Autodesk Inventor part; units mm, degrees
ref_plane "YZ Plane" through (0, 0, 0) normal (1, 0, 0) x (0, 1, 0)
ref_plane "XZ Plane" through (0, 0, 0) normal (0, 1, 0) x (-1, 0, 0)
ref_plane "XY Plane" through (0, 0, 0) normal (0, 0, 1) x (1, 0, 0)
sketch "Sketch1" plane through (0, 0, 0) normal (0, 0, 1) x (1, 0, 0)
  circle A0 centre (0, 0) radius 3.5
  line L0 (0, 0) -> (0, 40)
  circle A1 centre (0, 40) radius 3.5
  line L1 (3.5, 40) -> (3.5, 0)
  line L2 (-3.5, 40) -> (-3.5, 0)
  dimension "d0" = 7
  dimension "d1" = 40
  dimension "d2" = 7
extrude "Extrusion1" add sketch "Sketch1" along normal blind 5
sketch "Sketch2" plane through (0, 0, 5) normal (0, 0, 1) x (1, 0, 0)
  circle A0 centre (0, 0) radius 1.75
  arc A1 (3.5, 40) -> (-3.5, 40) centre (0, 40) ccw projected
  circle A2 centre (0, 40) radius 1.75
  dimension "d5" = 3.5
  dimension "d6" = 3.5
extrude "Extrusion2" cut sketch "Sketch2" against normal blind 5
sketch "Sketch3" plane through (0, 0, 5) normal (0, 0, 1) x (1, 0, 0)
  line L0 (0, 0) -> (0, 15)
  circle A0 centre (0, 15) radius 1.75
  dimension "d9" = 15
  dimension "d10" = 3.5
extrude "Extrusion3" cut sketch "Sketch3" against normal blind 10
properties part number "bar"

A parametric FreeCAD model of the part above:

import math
import FreeCAD as App
import Part
import Sketcher
from FreeCAD import Vector

doc = App.newDocument("Part")
body = doc.addObject("PartDesign::Body", "Body")

# Sketch on XY plane
sketch1 = doc.addObject("Sketcher::SketchObject", "Sketch")
body.addObject(sketch1)
sketch1.AttachmentSupport = (doc.XY_Plane, [""])
sketch1.MapMode = "FlatFace"
sketch1.addGeometry([
    Part.ArcOfCircle(Part.Circle(Vector(0, 0, 0), Vector(0, 0, 1), 3.5), math.radians(180), math.radians(360)),
    Part.LineSegment(Vector(3.5, 0, 0), Vector(3.5, 40, 0)),
    Part.ArcOfCircle(Part.Circle(Vector(0, 40, 0), Vector(0, 0, 1), 3.5), math.radians(0), math.radians(180)),
    Part.LineSegment(Vector(-3.5, 40, 0), Vector(-3.5, 0, 0)),
], False)
sketch1.addConstraint([
    Sketcher.Constraint("Tangent", 0, 2, 1, 1),
    Sketcher.Constraint("Tangent", 1, 2, 2, 1),
    Sketcher.Constraint("Tangent", 2, 2, 3, 1),
    Sketcher.Constraint("Tangent", 3, 2, 0, 1),
    Sketcher.Constraint("Vertical", 1),
    Sketcher.Constraint("Vertical", 3),
    Sketcher.Constraint("Coincident", 0, 3, -1, 1),
    Sketcher.Constraint("Radius", 0, 3.5),
    Sketcher.Constraint("DistanceY", 1, 1, 1, 2, 40.0),
])
pad1 = doc.addObject("PartDesign::Pad", "Pad")
body.addObject(pad1)
pad1.Profile = sketch1
pad1.Length = 5

# Sketch on XY plane
sketch2 = doc.addObject("Sketcher::SketchObject", "Sketch001")
body.addObject(sketch2)
sketch2.AttachmentSupport = (doc.XY_Plane, [""])
sketch2.MapMode = "FlatFace"
sketch2.AttachmentOffset = App.Placement(Vector(0, 0, 5), App.Rotation())
sketch2.addGeometry([
    Part.Circle(Vector(0, 0, 0), Vector(0, 0, 1), 1.8),
    Part.Circle(Vector(0, 40, 0), Vector(0, 0, 1), 1.8),
], False)
sketch2.addConstraint([
    Sketcher.Constraint("Coincident", 0, 3, -1, 1),
    Sketcher.Constraint("Equal", 0, 1),
    Sketcher.Constraint("PointOnObject", 1, 3, -2),
    Sketcher.Constraint("Diameter", 0, 3.5),
    Sketcher.Constraint("DistanceY", -1, 1, 1, 3, 40.0),
])
pocket1 = doc.addObject("PartDesign::Pocket", "Pocket")
body.addObject(pocket1)
pocket1.Profile = sketch2
pocket1.Length = 5

# Sketch on XY plane
sketch3 = doc.addObject("Sketcher::SketchObject", "Sketch002")
body.addObject(sketch3)
sketch3.AttachmentSupport = (doc.XY_Plane, [""])
sketch3.MapMode = "FlatFace"
sketch3.AttachmentOffset = App.Placement(Vector(0, 0, 5), App.Rotation())
sketch3.addGeometry(Part.Circle(Vector(0, 15, 0), Vector(0, 0, 1), 1.8), False)
sketch3.addConstraint([
    Sketcher.Constraint("PointOnObject", 0, 3, -2),
    Sketcher.Constraint("Diameter", 0, 3.5),
    Sketcher.Constraint("DistanceY", -1, 1, 0, 3, 15.0),
])
pocket2 = doc.addObject("PartDesign::Pocket", "Pocket001")
body.addObject(pocket2)
pocket2.Profile = sketch3
pocket2.Length = 10

doc.recompute()
